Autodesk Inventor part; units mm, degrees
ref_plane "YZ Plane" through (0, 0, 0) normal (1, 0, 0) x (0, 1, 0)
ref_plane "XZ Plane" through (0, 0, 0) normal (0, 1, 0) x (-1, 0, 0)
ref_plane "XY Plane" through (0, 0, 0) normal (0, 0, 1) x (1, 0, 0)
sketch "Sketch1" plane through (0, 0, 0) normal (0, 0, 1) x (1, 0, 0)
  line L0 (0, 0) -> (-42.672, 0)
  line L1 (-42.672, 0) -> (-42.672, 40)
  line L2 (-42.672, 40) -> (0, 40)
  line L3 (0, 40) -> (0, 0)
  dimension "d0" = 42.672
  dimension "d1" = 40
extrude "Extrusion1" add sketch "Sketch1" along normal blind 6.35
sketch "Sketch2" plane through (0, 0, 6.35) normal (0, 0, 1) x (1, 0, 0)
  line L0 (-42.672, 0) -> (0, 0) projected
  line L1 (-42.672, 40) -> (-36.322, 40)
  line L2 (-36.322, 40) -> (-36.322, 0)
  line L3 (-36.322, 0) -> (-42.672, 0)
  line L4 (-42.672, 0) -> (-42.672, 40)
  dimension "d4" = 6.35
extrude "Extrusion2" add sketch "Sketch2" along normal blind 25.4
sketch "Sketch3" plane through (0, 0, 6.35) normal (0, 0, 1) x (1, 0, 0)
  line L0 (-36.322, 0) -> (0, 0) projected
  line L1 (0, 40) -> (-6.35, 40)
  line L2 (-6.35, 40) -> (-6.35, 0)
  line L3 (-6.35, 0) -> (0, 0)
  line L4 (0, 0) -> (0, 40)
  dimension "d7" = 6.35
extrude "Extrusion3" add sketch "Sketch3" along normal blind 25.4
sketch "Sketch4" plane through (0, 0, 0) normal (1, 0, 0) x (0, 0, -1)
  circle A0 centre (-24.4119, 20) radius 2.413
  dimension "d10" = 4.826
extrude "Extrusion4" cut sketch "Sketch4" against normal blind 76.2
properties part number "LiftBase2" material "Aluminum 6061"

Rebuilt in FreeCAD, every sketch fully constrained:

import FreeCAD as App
import Part
import Sketcher
Q = App.Units.Quantity


def add_polygon(sketch, points):
    """Adds a closed chain of lines whose ends are joined by coincident constraints."""
    first, n = sketch.GeometryCount, len(points)
    for a, b in zip(points, points[1:] + points[:1]):
        sketch.addGeometry(Part.LineSegment(App.Vector(*a, 0), App.Vector(*b, 0)), False)
    for i in range(n):
        sketch.addConstraint(Sketcher.Constraint("Coincident", first + i, 2, first + (i + 1) % n, 1))

doc = App.newDocument("Part")
body = doc.addObject("PartDesign::Body", "Body")

# Sketch on XY plane
sketch1 = body.newObject("Sketcher::SketchObject", "Sketch")
sketch1.AttachmentSupport = (doc.getObject("XY_Plane"), [""])
sketch1.MapMode = "FlatFace"
add_polygon(sketch1, [(-43, 0), (0, 0), (0, 40), (-43, 40)])  # lines 0-3
sketch1.addConstraint(Sketcher.Constraint("Horizontal", 0))
sketch1.addConstraint(Sketcher.Constraint("Vertical", 1))
sketch1.addConstraint(Sketcher.Constraint("Horizontal", 2))
sketch1.addConstraint(Sketcher.Constraint("Vertical", 3))
sketch1.addConstraint(Sketcher.Constraint("Coincident", 0, 2, -1, 1))
sketch1.addConstraint(Sketcher.Constraint("DistanceX", 0, 1, 0, 2, Q("1.68 in")))
sketch1.addConstraint(Sketcher.Constraint("DistanceY", 1, 1, 1, 2, Q("1.5748 in")))
pad1 = body.newObject("PartDesign::Pad", "Pad")
pad1.Profile = sketch1
pad1.Length = Q("0.25 in")

# Sketch on XY plane
sketch2 = body.newObject("Sketcher::SketchObject", "Sketch001")
sketch2.AttachmentSupport = (doc.getObject("XY_Plane"), [""])
sketch2.MapMode = "FlatFace"
sketch2.AttachmentOffset = App.Placement(App.Vector(0, 0, 0.25 * 25.4), App.Rotation())
add_polygon(sketch2, [(-43, 40), (-43, 0), (-36, 0), (-36, 40)])  # lines 0-3
sketch2.addConstraint(Sketcher.Constraint("Vertical", 0))
sketch2.addConstraint(Sketcher.Constraint("Horizontal", 1))
sketch2.addConstraint(Sketcher.Constraint("Vertical", 2))
sketch2.addConstraint(Sketcher.Constraint("Horizontal", 3))
sketch2.addConstraint(Sketcher.Constraint("PointOnObject", 0, 2, -1))
sketch2.addConstraint(Sketcher.Constraint("DistanceX", 1, 1, 1, 2, Q("0.25 in")))
sketch2.addConstraint(Sketcher.Constraint("DistanceX", 0, 2, -1, 1, Q("1.68 in")))
sketch2.addConstraint(Sketcher.Constraint("DistanceY", 0, 2, 0, 1, Q("1.5748 in")))
pad2 = body.newObject("PartDesign::Pad", "Pad001")
pad2.Profile = sketch2
pad2.Length = Q("1 in")

# Sketch on XY plane
sketch3 = body.newObject("Sketcher::SketchObject", "Sketch002")
sketch3.AttachmentSupport = (doc.getObject("XY_Plane"), [""])
sketch3.MapMode = "FlatFace"
sketch3.AttachmentOffset = App.Placement(App.Vector(0, 0, 0.25 * 25.4), App.Rotation())
add_polygon(sketch3, [(-6, 40), (-6, 0), (0, 0), (0, 40)])  # lines 0-3
sketch3.addConstraint(Sketcher.Constraint("Vertical", 0))
sketch3.addConstraint(Sketcher.Constraint("Horizontal", 1))
sketch3.addConstraint(Sketcher.Constraint("Vertical", 2))
sketch3.addConstraint(Sketcher.Constraint("Horizontal", 3))
sketch3.addConstraint(Sketcher.Constraint("Coincident", 1, 2, -1, 1))
sketch3.addConstraint(Sketcher.Constraint("DistanceX", 1, 1, 1, 2, Q("0.25 in")))
sketch3.addConstraint(Sketcher.Constraint("DistanceY", 0, 2, 0, 1, Q("1.5748 in")))
pad3 = body.newObject("PartDesign::Pad", "Pad002")
pad3.Profile = sketch3
pad3.Length = Q("1 in")

# Sketch on YZ plane
sketch4 = body.newObject("Sketcher::SketchObject", "Sketch003")
sketch4.AttachmentSupport = (doc.getObject("YZ_Plane"), [""])
sketch4.MapMode = "FlatFace"
sketch4.addGeometry(Part.Circle(App.Vector(20, 24.4, 0), App.Vector(0, 0, 1), 2.4), False)
sketch4.addConstraint(Sketcher.Constraint("Diameter", 0, Q("0.19 in")))
sketch4.addConstraint(Sketcher.Constraint("DistanceX", -1, 1, 0, 3, Q("0.7874 in")))
sketch4.addConstraint(Sketcher.Constraint("DistanceY", -1, 1, 0, 3, Q("0.9611 in")))
pocket1 = body.newObject("PartDesign::Pocket", "Pocket")
pocket1.Profile = sketch4
pocket1.Length = Q("3 in")

doc.recompute()
